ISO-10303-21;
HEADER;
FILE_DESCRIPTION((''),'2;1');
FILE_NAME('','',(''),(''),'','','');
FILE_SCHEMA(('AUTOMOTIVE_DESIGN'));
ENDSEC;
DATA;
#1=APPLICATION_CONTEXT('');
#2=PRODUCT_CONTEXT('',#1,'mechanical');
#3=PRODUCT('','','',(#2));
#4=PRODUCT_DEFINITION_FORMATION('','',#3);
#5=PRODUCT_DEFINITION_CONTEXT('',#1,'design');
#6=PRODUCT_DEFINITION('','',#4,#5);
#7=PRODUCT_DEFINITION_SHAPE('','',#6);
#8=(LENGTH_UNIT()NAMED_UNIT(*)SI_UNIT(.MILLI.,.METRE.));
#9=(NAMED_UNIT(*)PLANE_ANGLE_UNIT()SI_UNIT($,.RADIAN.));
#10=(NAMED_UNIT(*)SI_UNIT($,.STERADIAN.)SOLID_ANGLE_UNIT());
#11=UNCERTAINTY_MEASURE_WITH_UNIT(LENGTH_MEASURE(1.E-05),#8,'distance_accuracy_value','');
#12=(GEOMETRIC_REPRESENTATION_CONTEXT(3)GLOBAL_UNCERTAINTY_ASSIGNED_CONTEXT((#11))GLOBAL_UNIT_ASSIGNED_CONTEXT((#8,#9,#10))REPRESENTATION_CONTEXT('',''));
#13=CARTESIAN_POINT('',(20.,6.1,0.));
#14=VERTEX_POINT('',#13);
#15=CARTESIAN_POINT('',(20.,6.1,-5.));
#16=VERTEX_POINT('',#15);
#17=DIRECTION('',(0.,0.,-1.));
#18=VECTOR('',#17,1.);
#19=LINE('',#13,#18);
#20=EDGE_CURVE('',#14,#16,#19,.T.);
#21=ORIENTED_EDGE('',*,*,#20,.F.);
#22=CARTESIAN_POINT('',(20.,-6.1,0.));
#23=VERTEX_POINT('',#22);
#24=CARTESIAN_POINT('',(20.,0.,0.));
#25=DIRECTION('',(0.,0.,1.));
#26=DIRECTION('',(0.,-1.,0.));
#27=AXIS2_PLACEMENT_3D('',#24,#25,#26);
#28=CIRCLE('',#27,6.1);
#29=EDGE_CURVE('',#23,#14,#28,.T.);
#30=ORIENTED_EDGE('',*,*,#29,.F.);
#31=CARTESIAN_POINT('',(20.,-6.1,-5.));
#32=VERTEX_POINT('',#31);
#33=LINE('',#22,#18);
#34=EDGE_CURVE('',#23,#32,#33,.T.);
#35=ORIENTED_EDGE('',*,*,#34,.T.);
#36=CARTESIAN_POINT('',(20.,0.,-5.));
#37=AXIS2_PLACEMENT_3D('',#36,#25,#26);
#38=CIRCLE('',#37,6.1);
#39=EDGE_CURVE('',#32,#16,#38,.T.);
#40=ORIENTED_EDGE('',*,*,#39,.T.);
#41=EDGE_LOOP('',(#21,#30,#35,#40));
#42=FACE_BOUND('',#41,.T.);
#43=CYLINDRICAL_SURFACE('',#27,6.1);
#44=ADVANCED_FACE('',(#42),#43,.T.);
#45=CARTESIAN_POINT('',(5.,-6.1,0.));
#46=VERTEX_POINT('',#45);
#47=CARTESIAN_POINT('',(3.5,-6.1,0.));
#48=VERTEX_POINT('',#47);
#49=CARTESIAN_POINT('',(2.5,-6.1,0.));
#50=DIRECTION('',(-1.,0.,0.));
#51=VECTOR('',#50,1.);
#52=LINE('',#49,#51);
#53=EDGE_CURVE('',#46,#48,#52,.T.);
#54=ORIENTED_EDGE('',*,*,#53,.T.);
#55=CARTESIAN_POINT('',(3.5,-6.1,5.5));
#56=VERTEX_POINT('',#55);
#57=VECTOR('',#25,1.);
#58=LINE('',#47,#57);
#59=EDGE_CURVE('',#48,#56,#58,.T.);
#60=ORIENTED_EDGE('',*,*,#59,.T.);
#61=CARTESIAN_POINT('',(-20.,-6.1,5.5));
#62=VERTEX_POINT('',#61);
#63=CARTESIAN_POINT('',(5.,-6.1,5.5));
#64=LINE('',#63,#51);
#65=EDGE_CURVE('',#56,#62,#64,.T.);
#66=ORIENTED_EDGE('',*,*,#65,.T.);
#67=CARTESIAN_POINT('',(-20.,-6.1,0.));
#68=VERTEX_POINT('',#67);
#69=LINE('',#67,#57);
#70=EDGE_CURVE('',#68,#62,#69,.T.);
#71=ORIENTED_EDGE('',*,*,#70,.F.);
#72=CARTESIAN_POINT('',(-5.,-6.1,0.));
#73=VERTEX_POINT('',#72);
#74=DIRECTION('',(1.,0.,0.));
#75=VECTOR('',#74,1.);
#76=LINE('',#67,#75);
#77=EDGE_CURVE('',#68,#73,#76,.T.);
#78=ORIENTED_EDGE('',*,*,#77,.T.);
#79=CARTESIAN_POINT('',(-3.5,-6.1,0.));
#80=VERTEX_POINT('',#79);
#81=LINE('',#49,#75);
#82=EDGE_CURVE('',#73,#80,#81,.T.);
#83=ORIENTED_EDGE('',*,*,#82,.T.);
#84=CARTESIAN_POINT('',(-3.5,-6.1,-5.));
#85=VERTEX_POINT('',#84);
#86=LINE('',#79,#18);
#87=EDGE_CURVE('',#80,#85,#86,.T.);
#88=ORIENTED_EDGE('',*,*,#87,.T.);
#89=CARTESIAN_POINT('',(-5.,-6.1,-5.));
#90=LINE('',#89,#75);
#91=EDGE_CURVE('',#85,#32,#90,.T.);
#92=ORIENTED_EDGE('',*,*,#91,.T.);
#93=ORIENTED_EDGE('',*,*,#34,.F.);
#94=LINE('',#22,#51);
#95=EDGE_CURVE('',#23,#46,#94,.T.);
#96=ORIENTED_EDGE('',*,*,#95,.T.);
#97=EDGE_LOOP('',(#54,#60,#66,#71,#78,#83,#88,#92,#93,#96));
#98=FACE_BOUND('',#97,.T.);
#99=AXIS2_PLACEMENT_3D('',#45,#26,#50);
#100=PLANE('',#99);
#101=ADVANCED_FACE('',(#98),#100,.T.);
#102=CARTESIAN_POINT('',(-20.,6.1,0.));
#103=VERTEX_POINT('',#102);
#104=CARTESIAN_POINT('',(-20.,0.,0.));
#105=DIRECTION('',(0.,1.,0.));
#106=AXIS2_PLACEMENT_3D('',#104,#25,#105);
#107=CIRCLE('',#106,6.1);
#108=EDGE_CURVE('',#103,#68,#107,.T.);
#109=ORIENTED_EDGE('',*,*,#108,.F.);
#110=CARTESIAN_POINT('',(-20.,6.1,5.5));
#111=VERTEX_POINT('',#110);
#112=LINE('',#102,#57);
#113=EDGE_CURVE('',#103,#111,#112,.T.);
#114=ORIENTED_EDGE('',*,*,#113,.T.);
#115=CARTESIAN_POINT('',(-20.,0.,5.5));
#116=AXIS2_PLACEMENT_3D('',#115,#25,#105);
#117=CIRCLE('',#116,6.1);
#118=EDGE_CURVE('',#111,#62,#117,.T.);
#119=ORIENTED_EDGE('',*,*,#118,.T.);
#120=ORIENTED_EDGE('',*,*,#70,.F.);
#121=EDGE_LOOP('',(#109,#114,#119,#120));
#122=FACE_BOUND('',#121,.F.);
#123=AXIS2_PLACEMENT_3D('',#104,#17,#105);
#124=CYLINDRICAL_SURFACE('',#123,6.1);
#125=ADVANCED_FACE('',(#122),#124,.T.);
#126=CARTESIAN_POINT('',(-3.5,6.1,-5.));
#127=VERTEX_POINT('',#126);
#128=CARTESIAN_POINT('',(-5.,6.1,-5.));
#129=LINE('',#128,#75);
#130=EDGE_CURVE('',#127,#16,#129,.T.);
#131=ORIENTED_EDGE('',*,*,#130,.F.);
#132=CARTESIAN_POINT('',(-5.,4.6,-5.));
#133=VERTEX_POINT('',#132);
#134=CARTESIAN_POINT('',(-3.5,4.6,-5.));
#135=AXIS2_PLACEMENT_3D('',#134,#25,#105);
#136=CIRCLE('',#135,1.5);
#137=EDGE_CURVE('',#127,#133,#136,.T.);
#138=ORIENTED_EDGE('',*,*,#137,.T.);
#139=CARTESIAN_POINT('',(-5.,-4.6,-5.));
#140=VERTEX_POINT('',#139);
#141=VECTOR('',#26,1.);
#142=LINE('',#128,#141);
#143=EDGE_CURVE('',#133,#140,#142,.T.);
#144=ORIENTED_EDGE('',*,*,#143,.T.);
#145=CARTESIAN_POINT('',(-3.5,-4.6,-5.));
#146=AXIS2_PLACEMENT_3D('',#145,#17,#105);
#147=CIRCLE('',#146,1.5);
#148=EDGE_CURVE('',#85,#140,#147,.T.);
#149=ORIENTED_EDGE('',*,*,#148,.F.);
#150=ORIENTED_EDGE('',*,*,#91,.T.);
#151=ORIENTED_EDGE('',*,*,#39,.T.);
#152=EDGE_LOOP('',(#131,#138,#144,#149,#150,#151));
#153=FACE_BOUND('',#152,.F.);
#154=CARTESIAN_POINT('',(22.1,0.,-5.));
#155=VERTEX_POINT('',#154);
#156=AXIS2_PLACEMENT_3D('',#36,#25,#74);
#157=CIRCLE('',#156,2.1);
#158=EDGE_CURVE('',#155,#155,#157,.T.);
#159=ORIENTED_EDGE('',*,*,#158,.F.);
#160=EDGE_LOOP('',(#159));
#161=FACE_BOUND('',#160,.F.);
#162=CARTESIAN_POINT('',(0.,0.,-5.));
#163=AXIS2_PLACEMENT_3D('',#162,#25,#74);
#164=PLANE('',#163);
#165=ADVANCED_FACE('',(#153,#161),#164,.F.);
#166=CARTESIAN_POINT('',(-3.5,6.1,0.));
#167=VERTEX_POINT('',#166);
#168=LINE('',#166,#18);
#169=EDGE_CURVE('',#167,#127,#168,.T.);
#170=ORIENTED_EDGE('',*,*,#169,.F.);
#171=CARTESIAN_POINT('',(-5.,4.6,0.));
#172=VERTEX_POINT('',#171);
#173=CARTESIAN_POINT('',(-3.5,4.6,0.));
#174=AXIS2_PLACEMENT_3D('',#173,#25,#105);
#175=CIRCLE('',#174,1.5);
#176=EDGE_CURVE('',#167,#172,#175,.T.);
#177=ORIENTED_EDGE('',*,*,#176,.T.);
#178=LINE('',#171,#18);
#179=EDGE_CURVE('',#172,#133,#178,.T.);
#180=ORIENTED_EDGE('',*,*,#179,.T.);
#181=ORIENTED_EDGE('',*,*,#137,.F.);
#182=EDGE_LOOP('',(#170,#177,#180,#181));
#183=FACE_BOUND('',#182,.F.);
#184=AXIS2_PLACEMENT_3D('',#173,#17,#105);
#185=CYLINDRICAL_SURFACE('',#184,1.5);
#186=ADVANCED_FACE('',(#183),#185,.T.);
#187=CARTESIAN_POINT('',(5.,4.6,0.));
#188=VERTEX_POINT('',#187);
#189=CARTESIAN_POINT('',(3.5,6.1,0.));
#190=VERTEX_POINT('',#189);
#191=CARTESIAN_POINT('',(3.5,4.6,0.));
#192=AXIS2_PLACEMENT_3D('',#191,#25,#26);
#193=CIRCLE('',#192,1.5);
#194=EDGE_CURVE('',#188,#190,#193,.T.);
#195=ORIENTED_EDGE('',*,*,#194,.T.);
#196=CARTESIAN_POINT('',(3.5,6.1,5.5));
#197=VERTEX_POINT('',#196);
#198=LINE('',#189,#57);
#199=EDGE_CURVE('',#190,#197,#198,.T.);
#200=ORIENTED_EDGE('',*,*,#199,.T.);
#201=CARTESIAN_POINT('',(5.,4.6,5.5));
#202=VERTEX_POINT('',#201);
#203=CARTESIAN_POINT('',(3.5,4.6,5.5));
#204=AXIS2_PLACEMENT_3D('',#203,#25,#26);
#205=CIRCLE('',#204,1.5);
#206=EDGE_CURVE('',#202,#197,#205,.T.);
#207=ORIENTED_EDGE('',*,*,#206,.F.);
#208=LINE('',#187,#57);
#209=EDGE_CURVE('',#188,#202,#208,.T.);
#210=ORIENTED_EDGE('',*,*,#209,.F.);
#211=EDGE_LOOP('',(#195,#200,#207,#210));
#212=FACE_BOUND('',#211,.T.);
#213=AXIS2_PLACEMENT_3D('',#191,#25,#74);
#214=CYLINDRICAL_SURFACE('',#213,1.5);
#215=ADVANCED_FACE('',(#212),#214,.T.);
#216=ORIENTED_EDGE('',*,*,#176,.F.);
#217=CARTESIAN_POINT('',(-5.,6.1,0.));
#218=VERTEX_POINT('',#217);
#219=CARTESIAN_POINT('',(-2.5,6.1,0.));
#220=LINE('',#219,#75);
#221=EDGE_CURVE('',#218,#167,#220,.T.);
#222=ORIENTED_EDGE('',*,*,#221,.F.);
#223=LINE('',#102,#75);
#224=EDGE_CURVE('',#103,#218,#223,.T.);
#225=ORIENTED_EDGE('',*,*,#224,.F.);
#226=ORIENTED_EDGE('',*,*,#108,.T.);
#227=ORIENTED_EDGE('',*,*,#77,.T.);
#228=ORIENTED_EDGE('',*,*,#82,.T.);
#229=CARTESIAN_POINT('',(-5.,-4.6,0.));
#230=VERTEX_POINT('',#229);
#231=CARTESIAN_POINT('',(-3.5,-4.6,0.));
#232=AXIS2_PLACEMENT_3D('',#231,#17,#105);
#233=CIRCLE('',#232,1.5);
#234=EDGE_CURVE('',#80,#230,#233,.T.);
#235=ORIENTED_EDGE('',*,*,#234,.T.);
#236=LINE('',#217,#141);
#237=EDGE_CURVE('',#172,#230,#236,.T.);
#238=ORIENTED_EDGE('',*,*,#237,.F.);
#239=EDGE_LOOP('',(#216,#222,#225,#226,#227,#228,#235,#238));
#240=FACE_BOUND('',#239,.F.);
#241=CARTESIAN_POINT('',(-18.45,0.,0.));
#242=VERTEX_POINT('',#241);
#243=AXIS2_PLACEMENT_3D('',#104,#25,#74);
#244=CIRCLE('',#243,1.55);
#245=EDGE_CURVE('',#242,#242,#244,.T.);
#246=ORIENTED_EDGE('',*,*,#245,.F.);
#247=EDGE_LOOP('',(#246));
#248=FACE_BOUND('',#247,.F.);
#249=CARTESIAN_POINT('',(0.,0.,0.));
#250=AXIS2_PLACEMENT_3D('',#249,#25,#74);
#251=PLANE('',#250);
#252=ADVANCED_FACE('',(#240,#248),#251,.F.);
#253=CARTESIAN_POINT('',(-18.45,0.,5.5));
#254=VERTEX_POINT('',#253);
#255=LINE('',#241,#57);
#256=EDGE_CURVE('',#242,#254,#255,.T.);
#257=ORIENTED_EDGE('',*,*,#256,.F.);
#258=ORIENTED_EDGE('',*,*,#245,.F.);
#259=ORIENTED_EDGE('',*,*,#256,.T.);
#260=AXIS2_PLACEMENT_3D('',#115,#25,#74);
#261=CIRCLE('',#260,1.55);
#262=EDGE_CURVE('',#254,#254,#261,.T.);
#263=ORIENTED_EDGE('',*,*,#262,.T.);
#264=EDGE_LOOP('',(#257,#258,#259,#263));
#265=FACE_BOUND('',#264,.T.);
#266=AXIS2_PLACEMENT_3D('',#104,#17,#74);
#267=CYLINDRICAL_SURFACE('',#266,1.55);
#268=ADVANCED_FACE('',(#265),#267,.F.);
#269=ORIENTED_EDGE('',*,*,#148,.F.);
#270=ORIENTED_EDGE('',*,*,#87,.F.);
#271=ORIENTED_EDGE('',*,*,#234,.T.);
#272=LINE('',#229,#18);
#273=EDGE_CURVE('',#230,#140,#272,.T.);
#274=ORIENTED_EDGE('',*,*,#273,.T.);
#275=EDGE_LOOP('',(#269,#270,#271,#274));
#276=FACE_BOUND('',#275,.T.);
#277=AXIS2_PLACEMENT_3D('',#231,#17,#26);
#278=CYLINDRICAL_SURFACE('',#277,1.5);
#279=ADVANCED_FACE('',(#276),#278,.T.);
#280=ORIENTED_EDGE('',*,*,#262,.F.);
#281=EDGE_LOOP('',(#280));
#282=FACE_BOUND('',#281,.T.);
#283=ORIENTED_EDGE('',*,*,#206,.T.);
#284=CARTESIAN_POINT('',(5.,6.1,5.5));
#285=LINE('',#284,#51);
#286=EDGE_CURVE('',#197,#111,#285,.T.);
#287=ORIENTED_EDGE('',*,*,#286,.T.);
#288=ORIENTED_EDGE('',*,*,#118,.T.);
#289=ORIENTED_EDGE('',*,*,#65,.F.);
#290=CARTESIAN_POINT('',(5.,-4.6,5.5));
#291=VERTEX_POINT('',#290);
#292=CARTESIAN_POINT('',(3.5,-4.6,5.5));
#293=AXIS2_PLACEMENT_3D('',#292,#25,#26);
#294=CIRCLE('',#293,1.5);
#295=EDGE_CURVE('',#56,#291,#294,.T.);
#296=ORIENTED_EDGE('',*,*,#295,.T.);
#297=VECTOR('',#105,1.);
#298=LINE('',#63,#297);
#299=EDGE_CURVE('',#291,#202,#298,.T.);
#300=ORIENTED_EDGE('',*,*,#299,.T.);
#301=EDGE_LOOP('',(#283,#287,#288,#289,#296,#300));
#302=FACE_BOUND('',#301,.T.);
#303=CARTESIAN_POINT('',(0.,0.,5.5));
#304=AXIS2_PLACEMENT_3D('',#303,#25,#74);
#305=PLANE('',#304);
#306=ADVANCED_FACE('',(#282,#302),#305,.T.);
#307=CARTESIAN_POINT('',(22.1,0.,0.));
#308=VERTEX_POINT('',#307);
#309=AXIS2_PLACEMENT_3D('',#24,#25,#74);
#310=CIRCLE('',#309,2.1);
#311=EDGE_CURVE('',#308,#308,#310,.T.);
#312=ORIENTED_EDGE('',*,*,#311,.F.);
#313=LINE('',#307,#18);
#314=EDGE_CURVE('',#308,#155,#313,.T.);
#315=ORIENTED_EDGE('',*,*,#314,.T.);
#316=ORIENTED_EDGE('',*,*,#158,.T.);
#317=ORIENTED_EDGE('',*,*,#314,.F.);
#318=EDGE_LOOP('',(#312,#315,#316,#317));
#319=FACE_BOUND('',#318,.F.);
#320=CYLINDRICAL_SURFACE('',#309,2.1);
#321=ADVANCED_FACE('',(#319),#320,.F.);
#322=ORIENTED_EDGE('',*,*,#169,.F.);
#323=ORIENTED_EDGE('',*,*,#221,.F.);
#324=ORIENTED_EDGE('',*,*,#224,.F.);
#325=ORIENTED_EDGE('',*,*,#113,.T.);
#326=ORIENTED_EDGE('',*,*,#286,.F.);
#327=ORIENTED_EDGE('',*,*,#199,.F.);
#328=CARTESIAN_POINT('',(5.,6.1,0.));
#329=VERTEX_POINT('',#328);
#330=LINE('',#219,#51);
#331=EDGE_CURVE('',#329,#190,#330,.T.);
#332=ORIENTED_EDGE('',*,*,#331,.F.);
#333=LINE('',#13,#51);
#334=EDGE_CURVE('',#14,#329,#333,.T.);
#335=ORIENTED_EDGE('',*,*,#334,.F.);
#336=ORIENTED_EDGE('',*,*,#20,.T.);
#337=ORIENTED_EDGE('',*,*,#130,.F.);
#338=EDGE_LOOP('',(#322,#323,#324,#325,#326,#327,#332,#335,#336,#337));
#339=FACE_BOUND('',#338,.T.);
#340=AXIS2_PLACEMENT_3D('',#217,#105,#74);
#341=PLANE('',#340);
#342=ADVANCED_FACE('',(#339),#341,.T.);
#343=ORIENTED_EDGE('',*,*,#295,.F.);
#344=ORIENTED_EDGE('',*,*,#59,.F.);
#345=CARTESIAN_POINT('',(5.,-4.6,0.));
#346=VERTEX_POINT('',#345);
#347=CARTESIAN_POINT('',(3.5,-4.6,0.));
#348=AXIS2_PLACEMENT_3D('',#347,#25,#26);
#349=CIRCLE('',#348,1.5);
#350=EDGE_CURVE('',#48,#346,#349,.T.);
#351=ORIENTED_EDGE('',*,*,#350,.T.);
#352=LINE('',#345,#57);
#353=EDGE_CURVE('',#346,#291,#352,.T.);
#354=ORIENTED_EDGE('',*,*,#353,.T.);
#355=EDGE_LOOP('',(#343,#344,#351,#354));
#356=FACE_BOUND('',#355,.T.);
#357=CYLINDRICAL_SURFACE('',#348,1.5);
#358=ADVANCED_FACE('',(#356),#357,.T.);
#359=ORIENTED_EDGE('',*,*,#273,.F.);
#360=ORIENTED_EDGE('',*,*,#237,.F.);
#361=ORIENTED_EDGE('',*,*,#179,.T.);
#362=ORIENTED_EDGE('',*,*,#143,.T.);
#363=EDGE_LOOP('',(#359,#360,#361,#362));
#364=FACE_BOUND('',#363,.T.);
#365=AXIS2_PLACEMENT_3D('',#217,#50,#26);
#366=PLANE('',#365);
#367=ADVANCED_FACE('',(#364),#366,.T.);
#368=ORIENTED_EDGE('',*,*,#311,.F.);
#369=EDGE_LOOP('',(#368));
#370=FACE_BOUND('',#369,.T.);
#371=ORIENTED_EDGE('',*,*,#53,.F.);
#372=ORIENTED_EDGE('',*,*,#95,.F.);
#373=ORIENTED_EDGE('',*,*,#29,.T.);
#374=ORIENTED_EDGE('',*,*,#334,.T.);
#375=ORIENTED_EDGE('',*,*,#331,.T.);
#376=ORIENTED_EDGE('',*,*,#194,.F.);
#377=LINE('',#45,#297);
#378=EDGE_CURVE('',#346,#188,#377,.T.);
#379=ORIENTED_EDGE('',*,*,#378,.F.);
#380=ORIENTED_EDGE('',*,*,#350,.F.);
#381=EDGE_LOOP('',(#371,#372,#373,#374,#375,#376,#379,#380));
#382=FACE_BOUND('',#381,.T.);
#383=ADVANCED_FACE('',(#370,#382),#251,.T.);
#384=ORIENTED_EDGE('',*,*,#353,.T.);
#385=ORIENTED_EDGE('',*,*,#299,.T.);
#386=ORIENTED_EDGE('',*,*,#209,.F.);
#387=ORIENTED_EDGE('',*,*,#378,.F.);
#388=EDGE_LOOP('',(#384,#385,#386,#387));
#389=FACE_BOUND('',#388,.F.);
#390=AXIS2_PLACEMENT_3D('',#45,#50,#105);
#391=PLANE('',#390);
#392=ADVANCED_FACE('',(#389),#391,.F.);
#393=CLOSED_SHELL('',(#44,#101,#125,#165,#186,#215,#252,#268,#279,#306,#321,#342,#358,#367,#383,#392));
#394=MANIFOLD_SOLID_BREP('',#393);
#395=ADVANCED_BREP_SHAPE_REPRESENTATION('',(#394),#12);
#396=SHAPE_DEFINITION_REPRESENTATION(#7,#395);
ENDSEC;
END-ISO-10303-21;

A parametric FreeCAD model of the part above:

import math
import FreeCAD as App
import Part
import Sketcher
Q = App.Units.Quantity


def edges_at(feature, points):
    """Names of the edges that pass closest to the given points."""
    edges = feature.Shape.Edges
    near = lambda p: min(range(len(edges)), key=lambda i: edges[i].distToShape(Part.Vertex(*p))[0])
    return sorted({f"Edge{near(p) + 1}" for p in points})

doc = App.newDocument("Part")
body = doc.addObject("PartDesign::Body", "Body")

# Sketch on XY plane
sketch1 = body.newObject("Sketcher::SketchObject", "Sketch")
sketch1.AttachmentSupport = (doc.getObject("XY_Plane"), [""])
sketch1.MapMode = "FlatFace"
sketch1.addGeometry([
    Part.LineSegment(App.Vector(5, -6.1, 0), App.Vector(5, 6.1, 0)),  # 0
    Part.LineSegment(App.Vector(5, 6.1, 0), App.Vector(-20, 6.1, 0)),  # 1
    Part.ArcOfCircle(Part.Circle(App.Vector(-20, 0, 0), App.Vector(0, 0, 1), 6.1), math.radians(90), math.radians(270)),  # 2
    Part.LineSegment(App.Vector(-20, -6.1, 0), App.Vector(5, -6.1, 0)),  # 3
    Part.Circle(App.Vector(-20, 0, 0), App.Vector(0, 0, 1), 1.6),  # 4
], False)
sketch1.addConstraint([
    Sketcher.Constraint("Coincident", 0, 2, 1, 1),
    Sketcher.Constraint("Tangent", 1, 2, 2, 1),
    Sketcher.Constraint("Tangent", 2, 2, 3, 1),
    Sketcher.Constraint("Coincident", 3, 2, 0, 1),
    Sketcher.Constraint("Vertical", 0),
    Sketcher.Constraint("Horizontal", 1),
    Sketcher.Constraint("Horizontal", 3),
    Sketcher.Constraint("Coincident", 4, 3, 2, 3),
    Sketcher.Constraint("PointOnObject", 2, 3, -1),
    Sketcher.Constraint("Diameter", 4, Q("3.1 mm")),
    Sketcher.Constraint("Radius", 2, Q("6.1 mm")),
    Sketcher.Constraint("DistanceX", 1, 2, 1, 1, Q("25 mm")),
    Sketcher.Constraint("DistanceX", 2, 3, -1, 1, Q("20 mm")),
])
pad1 = body.newObject("PartDesign::Pad", "Pad")
pad1.Profile = sketch1
pad1.Length = 5.5

# Sketch on XY plane
sketch2 = body.newObject("Sketcher::SketchObject", "Sketch001")
sketch2.AttachmentSupport = (doc.getObject("XY_Plane"), [""])
sketch2.MapMode = "FlatFace"
sketch2.addGeometry([
    Part.ArcOfCircle(Part.Circle(App.Vector(20, 0, 0), App.Vector(0, 0, 1), 6.1), math.radians(-90), math.radians(90)),  # 0
    Part.LineSegment(App.Vector(20, 6.1, 0), App.Vector(-5, 6.1, 0)),  # 1
    Part.LineSegment(App.Vector(-5, 6.1, 0), App.Vector(-5, -6.1, 0)),  # 2
    Part.LineSegment(App.Vector(-5, -6.1, 0), App.Vector(20, -6.1, 0)),  # 3
    Part.Circle(App.Vector(20, 0, 0), App.Vector(0, 0, 1), 2.1),  # 4
], False)
sketch2.addConstraint([
    Sketcher.Constraint("Tangent", 0, 2, 1, 1),
    Sketcher.Constraint("Coincident", 1, 2, 2, 1),
    Sketcher.Constraint("Coincident", 2, 2, 3, 1),
    Sketcher.Constraint("Tangent", 3, 2, 0, 1),
    Sketcher.Constraint("Horizontal", 1),
    Sketcher.Constraint("Vertical", 2),
    Sketcher.Constraint("Horizontal", 3),
    Sketcher.Constraint("Coincident", 4, 3, 0, 3),
    Sketcher.Constraint("PointOnObject", 0, 3, -1),
    Sketcher.Constraint("Diameter", 4, Q("4.2 mm")),
    Sketcher.Constraint("Radius", 0, Q("6.1 mm")),
    Sketcher.Constraint("DistanceX", 1, 2, 1, 1, Q("25 mm")),
    Sketcher.Constraint("DistanceX", -1, 1, 0, 3, Q("20 mm")),
])
pad2 = body.newObject("PartDesign::Pad", "Pad001")
pad2.Profile = sketch2
pad2.Length = 5
pad2.Reversed = True
doc.recompute()

fillet = body.newObject("PartDesign::Fillet", "Fillet")
fillet.Base = (pad2, edges_at(pad2, [
    (-5, 6.1, -2.5),
    (-5, -6.1, -2.5),
    (5, -6.1, 2.75),
    (5, 6.1, 2.75),
]))
fillet.Radius = 1.5

doc.recompute()
